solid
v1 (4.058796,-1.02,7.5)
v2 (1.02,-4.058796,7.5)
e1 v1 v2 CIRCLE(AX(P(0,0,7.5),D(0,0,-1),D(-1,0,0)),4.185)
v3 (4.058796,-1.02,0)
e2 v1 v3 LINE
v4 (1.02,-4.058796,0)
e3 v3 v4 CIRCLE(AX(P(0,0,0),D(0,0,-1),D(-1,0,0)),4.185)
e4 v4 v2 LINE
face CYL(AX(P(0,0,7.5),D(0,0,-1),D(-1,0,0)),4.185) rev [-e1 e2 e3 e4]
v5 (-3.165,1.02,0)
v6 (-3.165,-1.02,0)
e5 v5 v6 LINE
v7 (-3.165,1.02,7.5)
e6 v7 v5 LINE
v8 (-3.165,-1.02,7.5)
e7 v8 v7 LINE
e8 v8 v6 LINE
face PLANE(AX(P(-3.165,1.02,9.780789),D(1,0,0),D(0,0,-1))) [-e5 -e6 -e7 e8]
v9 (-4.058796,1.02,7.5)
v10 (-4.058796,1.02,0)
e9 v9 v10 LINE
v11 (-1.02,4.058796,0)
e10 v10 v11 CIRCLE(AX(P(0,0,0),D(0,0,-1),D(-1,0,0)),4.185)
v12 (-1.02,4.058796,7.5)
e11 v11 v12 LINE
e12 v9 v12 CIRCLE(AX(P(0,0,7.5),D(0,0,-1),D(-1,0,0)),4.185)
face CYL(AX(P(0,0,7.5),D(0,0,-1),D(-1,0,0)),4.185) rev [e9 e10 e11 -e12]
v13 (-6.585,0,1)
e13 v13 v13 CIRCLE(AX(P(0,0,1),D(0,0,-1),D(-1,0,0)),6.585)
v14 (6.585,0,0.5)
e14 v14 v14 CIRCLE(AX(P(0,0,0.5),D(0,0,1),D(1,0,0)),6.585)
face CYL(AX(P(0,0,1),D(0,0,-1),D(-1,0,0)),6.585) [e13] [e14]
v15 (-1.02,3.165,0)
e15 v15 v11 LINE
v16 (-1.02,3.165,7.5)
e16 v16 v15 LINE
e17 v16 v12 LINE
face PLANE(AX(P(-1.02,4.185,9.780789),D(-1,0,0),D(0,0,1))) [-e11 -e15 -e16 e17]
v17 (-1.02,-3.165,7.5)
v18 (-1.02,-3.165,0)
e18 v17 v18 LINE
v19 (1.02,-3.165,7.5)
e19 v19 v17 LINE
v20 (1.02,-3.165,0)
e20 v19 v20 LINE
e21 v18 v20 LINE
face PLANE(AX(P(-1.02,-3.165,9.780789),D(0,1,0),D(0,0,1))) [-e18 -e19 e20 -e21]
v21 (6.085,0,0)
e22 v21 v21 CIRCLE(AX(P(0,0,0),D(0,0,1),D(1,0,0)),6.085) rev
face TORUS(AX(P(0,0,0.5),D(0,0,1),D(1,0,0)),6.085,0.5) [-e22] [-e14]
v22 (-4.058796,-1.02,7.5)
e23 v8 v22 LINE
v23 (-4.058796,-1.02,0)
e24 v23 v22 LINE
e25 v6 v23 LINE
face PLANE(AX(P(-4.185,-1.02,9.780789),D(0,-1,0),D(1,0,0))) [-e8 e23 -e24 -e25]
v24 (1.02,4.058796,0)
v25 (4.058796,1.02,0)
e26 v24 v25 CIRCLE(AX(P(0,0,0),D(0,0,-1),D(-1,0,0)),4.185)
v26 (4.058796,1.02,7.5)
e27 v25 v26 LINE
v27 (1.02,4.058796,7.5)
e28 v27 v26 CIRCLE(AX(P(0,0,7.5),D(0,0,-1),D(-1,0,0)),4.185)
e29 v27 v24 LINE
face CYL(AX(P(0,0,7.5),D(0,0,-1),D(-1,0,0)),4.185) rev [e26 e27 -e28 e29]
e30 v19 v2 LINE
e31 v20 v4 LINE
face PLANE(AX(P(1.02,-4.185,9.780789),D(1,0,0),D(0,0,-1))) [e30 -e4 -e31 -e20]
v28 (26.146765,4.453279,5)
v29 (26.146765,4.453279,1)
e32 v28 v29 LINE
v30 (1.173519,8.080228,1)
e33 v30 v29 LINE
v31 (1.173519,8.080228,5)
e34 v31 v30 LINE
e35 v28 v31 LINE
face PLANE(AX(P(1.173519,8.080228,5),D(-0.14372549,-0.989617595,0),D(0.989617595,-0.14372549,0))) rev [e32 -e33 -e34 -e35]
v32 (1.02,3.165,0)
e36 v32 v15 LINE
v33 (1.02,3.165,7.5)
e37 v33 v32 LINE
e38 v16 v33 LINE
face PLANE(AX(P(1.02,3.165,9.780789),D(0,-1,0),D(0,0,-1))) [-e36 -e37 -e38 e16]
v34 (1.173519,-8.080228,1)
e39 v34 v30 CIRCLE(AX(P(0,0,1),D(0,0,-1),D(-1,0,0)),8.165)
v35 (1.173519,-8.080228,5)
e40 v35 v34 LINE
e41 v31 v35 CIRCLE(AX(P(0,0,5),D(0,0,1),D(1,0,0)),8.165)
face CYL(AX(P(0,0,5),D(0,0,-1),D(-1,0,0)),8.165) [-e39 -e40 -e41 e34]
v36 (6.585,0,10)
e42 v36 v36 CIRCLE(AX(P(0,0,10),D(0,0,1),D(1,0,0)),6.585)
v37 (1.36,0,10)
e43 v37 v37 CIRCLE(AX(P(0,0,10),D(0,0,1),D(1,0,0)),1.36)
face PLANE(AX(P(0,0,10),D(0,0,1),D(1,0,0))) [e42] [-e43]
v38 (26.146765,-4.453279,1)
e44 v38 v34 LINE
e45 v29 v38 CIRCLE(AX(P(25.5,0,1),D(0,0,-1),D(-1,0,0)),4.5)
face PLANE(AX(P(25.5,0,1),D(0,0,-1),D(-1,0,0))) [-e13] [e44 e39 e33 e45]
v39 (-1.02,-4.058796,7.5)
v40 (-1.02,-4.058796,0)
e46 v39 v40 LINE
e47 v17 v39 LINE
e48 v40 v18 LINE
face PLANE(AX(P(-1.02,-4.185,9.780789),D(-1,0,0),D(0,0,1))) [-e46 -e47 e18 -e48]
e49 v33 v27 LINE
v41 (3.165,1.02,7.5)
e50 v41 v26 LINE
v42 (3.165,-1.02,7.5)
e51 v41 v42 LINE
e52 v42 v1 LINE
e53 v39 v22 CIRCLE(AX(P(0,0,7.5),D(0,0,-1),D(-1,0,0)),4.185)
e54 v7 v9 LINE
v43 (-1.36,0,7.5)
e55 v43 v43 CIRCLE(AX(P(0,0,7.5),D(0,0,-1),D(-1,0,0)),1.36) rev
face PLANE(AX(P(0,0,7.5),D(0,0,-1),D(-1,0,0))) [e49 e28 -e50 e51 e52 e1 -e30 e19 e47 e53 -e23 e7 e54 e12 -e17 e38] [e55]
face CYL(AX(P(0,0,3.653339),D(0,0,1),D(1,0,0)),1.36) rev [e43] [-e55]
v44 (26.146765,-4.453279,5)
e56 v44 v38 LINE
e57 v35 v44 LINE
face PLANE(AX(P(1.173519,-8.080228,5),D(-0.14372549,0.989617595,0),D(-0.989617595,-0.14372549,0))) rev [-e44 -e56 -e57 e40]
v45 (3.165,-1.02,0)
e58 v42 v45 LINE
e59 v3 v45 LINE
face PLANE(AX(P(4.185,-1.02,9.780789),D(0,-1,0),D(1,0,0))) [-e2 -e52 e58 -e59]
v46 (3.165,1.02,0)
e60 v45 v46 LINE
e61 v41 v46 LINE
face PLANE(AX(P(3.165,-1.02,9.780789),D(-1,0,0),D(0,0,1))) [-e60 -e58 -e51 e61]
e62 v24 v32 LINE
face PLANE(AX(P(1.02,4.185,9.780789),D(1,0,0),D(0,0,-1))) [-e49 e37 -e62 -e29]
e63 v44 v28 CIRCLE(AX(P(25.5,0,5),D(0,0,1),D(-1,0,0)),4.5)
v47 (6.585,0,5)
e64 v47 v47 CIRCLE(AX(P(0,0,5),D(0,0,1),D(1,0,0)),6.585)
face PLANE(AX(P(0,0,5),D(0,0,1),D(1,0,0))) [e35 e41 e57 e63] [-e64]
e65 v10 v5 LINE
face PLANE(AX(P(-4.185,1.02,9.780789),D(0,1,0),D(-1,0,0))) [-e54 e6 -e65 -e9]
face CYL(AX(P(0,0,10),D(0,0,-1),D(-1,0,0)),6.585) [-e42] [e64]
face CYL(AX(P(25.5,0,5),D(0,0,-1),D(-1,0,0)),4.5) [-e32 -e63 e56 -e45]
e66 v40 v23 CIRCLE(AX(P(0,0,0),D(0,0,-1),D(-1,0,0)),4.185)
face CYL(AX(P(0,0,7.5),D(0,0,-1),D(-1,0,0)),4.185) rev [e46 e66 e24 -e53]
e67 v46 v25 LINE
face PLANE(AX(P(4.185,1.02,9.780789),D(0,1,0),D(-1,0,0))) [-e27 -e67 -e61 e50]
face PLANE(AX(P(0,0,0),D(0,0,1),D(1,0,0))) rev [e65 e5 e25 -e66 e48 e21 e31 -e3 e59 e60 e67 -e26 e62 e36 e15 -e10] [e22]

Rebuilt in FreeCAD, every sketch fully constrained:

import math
import FreeCAD as App
import Part
import Sketcher

V = App.Vector


def edges_at(feature, points):
    """Names of the edges that pass closest to the given points."""
    edges = feature.Shape.Edges
    near = lambda p: min(range(len(edges)), key=lambda i: edges[i].distToShape(Part.Vertex(*p))[0])
    return sorted({f"Edge{near(p) + 1}" for p in points})


def add_polygon(sketch, points):
    """Adds a closed chain of lines whose ends are joined by coincident constraints."""
    first, n = sketch.GeometryCount, len(points)
    for a, b in zip(points, points[1:] + points[:1]):
        sketch.addGeometry(Part.LineSegment(App.Vector(*a, 0), App.Vector(*b, 0)), False)
    for i in range(n):
        sketch.addConstraint(Sketcher.Constraint("Coincident", first + i, 2, first + (i + 1) % n, 1))

doc = App.newDocument("Part")
body = doc.addObject("PartDesign::Body", "Body")

sketch1 = body.newObject("Sketcher::SketchObject", "Sketch")
sketch1.AttachmentSupport = (doc.getObject("XY_Plane"), [""])
sketch1.MapMode = "FlatFace"
sketch1.addGeometry([
    Part.LineSegment(V(26.1, 4.5, 0), V(1.2, 8.1, 0)),
    Part.ArcOfCircle(Part.Circle(V(0, 0, 0), V(0, 0, 1), 8.2), math.radians(82), math.radians(278)),
    Part.LineSegment(V(1.2, -8.1, 0), V(26.1, -4.5, 0)),
    Part.ArcOfCircle(Part.Circle(V(25.5, 0, 0), V(0, 0, 1), 4.5), math.radians(-82), math.radians(82)),
], False)
sketch1.addConstraint([
    Sketcher.Constraint("Tangent", 0, 2, 1, 1),
    Sketcher.Constraint("Tangent", 1, 2, 2, 1),
    Sketcher.Constraint("Tangent", 2, 2, 3, 1),
    Sketcher.Constraint("Tangent", 3, 2, 0, 1),
    Sketcher.Constraint("Coincident", 1, 3, -1, 1),
    Sketcher.Constraint("PointOnObject", 3, 3, -1),
    Sketcher.Constraint("Radius", 3, 4.5),
    Sketcher.Constraint("Radius", 1, 8.165),
    Sketcher.Constraint("DistanceX", -1, 1, 3, 3, 25.5),
])
pad1 = body.newObject("PartDesign::Pad", "Pad")
pad1.Profile = sketch1
pad1.Length = 5

sketch2 = body.newObject("Sketcher::SketchObject", "Sketch001")
sketch2.AttachmentSupport = (doc.getObject("XY_Plane"), [""])
sketch2.MapMode = "FlatFace"
sketch2.AttachmentOffset = App.Placement(V(0, 0, 5), App.Rotation())
sketch2.addGeometry(Part.Circle(V(0, 0, 0), V(0, 0, 1), 7), False)
sketch2.addConstraint([
    Sketcher.Constraint("Coincident", 0, 3, -1, 1),
    Sketcher.Constraint("Diameter", 0, 13.17),
])
pad2 = body.newObject("PartDesign::Pad", "Pad001")
pad2.Profile = sketch2
pad2.Length = 5

sketch3 = body.newObject("Sketcher::SketchObject", "Sketch002")
sketch3.AttachmentSupport = (doc.getObject("XY_Plane"), [""])
sketch3.MapMode = "FlatFace"
sketch3.addGeometry(Part.Circle(V(0, 0, 0), V(0, 0, 1), 4.2), False)
sketch3.addConstraint([
    Sketcher.Constraint("Coincident", 0, 3, -1, 1),
    Sketcher.Constraint("Diameter", 0, 8.37),
])
pocket1 = body.newObject("PartDesign::Pocket", "Pocket")
pocket1.Profile = sketch3
pocket1.Length = 7.5
pocket1.Reversed = True

sketch4 = body.newObject("Sketcher::SketchObject", "Sketch003")
sketch4.AttachmentSupport = (doc.getObject("XY_Plane"), [""])
sketch4.MapMode = "FlatFace"
add_polygon(sketch4, [(1, 4.2), (1, 3.2), (-1, 3.2), (-1, 4.2)])
add_polygon(sketch4, [(-3.2, 1), (-3.2, -1), (-4.2, -1), (-4.2, 1)])
add_polygon(sketch4, [(1, -3.2), (1, -4.2), (-1, -4.2), (-1, -3.2)])
add_polygon(sketch4, [(4.2, 1), (4.2, -1), (3.2, -1), (3.2, 1)])
sketch4.addConstraint([
    Sketcher.Constraint("Vertical", 0),
    Sketcher.Constraint("Horizontal", 1),
    Sketcher.Constraint("Vertical", 2),
    Sketcher.Constraint("Horizontal", 3),
    Sketcher.Constraint("Vertical", 4),
    Sketcher.Constraint("Horizontal", 5),
    Sketcher.Constraint("Vertical", 6),
    Sketcher.Constraint("Horizontal", 7),
    Sketcher.Constraint("Vertical", 8),
    Sketcher.Constraint("Horizontal", 9),
    Sketcher.Constraint("Vertical", 10),
    Sketcher.Constraint("Horizontal", 11),
    Sketcher.Constraint("Vertical", 12),
    Sketcher.Constraint("Horizontal", 13),
    Sketcher.Constraint("Vertical", 14),
    Sketcher.Constraint("Horizontal", 15),
    Sketcher.Constraint("Symmetric", 2, 2, 8, 2, -1, 1),
    Sketcher.Constraint("Symmetric", 0, 2, 10, 2, -1, 1),
    Sketcher.Constraint("Symmetric", 6, 2, 12, 2, -1, 1),
    Sketcher.Constraint("Symmetric", 4, 2, 14, 2, -1, 1),
    Sketcher.Constraint("Horizontal", 5, 2, 12, 2),
    Sketcher.Constraint("Vertical", 3, 2, 8, 2),
    Sketcher.Constraint("Equal", 15, 0),
    Sketcher.Constraint("Equal", 11, 4),
    Sketcher.Constraint("DistanceX", 1, 2, 1, 1, 2.04),
    Sketcher.Constraint("DistanceX", 5, 2, 5, 1, 1.02),
    Sketcher.Constraint("DistanceY", 8, 2, 0, 2, 7.35),
    Sketcher.Constraint("DistanceX", 4, 2, -1, 1, 3.165),
])
pad3 = body.newObject("PartDesign::Pad", "Pad002")
pad3.Profile = sketch4
pad3.Length = 7.5

sketch5 = body.newObject("Sketcher::SketchObject", "Sketch004")
sketch5.AttachmentSupport = (doc.getObject("XY_Plane"), [""])
sketch5.MapMode = "FlatFace"
sketch5.AttachmentOffset = App.Placement(V(0, 0, 10), App.Rotation())
sketch5.addGeometry(Part.Circle(V(0, 0, 0), V(0, 0, 1), 1.4), False)
sketch5.addConstraint([
    Sketcher.Constraint("Coincident", 0, 3, -1, 1),
    Sketcher.Constraint("Diameter", 0, 2.72),
])
pocket2 = body.newObject("PartDesign::Pocket", "Pocket001")
pocket2.Profile = sketch5
pocket2.Length = 2.5

sketch6 = body.newObject("Sketcher::SketchObject", "Sketch005")
sketch6.AttachmentSupport = (doc.getObject("XY_Plane"), [""])
sketch6.MapMode = "FlatFace"
sketch6.addGeometry([
    Part.LineSegment(V(1.2, 8.1, 0), V(26.1, 4.5, 0)),
    Part.ArcOfCircle(Part.Circle(V(25.5, 0, 0), V(0, 0, 1), 4.5), math.radians(-82), math.radians(82)),
    Part.LineSegment(V(26.1, -4.5, 0), V(1.2, -8.1, 0)),
    Part.ArcOfCircle(Part.Circle(V(0, 0, 0), V(0, 0, 1), 8.2), math.radians(82), math.radians(278)),
    Part.Circle(V(0, 0, 0), V(0, 0, 1), 6.6),
], False)
sketch6.addConstraint([
    Sketcher.Constraint("Tangent", 0, 2, 1, 2),
    Sketcher.Constraint("Tangent", 1, 1, 2, 1),
    Sketcher.Constraint("Tangent", 2, 2, 3, 2),
    Sketcher.Constraint("Tangent", 3, 1, 0, 1),
    Sketcher.Constraint("Coincident", 3, 3, -1, 1),
    Sketcher.Constraint("Coincident", 4, 3, -1, 1),
    Sketcher.Constraint("PointOnObject", 1, 3, -1),
    Sketcher.Constraint("Radius", 1, 4.5),
    Sketcher.Constraint("Diameter", 4, 13.17),
    Sketcher.Constraint("Radius", 3, 8.165),
    Sketcher.Constraint("DistanceX", -1, 1, 1, 3, 25.5),
])
pocket3 = body.newObject("PartDesign::Pocket", "Pocket002")
pocket3.Profile = sketch6
pocket3.Length = 1
pocket3.Reversed = True
doc.recompute()

fillet = body.newObject("PartDesign::Fillet", "Fillet")
fillet.Base = (pocket3, edges_at(pocket3, [(-6.585, 0, 0)]))
fillet.Radius = 0.5

doc.recompute()
